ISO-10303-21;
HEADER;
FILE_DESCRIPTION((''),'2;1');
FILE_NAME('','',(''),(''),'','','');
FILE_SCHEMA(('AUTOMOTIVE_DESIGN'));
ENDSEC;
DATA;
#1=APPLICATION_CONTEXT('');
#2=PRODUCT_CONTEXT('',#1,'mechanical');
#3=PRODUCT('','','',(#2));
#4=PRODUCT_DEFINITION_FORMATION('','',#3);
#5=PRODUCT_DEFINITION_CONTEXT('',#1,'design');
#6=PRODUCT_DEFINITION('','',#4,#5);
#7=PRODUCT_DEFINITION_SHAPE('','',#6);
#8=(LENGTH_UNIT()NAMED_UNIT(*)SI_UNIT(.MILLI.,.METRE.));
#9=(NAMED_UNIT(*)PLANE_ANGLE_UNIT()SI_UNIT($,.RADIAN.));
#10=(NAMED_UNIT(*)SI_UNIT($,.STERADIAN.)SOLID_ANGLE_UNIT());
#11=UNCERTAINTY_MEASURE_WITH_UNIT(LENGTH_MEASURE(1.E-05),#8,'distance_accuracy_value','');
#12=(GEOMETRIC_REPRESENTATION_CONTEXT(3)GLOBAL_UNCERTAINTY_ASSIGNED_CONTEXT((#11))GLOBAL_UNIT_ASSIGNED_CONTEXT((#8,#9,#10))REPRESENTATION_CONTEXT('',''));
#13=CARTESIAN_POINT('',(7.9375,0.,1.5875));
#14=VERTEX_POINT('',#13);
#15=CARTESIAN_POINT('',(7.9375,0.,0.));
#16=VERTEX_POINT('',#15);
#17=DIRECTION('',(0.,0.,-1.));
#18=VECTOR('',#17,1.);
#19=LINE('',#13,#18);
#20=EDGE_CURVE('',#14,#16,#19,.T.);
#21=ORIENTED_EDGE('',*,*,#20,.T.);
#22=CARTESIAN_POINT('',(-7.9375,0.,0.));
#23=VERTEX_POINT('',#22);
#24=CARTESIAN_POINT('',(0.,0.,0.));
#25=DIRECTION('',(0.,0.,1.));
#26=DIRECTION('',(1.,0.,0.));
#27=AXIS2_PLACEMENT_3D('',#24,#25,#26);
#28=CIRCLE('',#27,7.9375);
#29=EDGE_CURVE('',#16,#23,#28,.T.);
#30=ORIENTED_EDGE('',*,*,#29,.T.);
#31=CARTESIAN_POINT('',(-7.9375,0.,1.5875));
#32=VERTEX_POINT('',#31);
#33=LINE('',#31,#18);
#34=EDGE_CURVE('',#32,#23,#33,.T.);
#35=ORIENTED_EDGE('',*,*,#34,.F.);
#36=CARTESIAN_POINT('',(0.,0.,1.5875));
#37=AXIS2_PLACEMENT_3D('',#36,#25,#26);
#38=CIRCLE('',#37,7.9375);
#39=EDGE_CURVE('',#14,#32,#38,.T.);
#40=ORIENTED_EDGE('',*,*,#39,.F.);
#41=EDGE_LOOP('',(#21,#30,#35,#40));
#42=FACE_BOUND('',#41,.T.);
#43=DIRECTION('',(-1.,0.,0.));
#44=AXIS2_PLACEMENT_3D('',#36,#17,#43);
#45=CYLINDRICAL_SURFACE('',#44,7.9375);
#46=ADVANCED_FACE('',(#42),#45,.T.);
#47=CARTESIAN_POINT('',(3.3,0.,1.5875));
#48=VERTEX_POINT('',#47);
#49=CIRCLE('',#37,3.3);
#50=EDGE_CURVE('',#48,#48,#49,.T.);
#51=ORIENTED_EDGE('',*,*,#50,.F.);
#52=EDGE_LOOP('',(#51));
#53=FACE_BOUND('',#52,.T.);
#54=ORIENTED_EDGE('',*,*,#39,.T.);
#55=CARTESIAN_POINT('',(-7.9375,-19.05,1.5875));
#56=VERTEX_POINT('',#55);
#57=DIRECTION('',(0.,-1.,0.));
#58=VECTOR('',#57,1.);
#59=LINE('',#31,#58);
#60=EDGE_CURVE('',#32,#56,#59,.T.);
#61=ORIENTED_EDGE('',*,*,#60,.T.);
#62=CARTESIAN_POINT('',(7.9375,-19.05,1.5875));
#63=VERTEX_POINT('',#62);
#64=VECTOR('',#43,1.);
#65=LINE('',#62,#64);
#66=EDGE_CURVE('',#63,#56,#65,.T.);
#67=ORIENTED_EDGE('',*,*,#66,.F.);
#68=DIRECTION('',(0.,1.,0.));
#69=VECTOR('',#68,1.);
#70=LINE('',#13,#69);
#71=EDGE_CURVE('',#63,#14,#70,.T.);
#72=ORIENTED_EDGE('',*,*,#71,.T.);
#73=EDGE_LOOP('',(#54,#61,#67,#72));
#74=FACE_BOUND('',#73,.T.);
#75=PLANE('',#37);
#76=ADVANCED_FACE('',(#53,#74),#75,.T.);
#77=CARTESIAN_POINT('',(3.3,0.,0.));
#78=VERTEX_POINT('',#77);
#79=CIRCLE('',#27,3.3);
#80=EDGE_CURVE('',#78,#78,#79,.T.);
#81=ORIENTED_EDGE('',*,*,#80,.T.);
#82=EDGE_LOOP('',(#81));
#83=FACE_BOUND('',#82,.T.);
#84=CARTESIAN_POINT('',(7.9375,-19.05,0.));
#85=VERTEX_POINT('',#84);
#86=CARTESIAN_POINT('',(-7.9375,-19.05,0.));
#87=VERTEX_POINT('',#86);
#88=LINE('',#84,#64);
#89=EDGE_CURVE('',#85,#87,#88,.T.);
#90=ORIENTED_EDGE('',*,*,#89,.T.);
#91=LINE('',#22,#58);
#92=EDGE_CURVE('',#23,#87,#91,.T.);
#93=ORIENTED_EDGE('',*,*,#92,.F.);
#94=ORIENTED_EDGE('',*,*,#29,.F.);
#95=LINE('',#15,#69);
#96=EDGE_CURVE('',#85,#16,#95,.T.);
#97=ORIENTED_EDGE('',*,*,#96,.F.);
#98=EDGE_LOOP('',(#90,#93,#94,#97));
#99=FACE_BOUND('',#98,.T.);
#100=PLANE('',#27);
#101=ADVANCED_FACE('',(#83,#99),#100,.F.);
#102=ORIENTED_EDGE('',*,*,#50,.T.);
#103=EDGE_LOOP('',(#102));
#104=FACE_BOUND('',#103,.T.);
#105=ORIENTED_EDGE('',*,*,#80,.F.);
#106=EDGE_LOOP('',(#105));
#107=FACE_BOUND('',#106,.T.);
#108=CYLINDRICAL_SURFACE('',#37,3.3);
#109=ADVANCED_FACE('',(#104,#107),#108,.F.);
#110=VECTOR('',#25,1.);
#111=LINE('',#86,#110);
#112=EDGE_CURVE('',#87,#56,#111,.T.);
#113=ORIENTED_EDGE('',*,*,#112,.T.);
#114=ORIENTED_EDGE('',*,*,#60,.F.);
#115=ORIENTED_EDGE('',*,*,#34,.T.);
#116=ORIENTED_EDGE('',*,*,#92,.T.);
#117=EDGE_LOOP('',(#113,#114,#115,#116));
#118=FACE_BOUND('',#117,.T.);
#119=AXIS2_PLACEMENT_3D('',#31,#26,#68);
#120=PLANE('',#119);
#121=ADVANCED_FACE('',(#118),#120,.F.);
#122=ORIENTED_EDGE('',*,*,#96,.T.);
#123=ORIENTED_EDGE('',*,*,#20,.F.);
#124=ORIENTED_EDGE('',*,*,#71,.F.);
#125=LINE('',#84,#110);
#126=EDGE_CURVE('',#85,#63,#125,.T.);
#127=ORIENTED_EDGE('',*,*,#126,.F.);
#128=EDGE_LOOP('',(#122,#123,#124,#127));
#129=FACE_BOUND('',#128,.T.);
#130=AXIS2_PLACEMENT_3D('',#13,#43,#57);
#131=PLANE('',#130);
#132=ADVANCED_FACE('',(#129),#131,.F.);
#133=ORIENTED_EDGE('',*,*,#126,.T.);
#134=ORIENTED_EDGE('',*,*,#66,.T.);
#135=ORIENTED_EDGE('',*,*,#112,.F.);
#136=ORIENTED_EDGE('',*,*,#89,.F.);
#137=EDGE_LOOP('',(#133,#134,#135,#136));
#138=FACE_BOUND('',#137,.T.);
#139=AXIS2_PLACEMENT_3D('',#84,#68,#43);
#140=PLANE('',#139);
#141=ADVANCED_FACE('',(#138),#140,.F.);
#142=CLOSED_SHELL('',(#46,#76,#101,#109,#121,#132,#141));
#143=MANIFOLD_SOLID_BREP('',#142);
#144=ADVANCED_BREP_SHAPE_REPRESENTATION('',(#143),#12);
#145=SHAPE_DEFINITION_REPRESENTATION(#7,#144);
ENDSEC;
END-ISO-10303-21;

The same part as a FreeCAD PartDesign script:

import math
import FreeCAD as App
import Part
import Sketcher
Q = App.Units.Quantity


def add_polygon(sketch, points):
    """Adds a closed chain of lines whose ends are joined by coincident constraints."""
    first, n = sketch.GeometryCount, len(points)
    for a, b in zip(points, points[1:] + points[:1]):
        sketch.addGeometry(Part.LineSegment(App.Vector(*a, 0), App.Vector(*b, 0)), False)
    for i in range(n):
        sketch.addConstraint(Sketcher.Constraint("Coincident", first + i, 2, first + (i + 1) % n, 1))

doc = App.newDocument("Part")
body = doc.addObject("PartDesign::Body", "Body")

# Sketch on XY plane
sketch1 = body.newObject("Sketcher::SketchObject", "Sketch")
sketch1.AttachmentSupport = (doc.getObject("XY_Plane"), [""])
sketch1.MapMode = "FlatFace"
sketch1.addGeometry(Part.LineSegment(App.Vector(8, -25, 0), App.Vector(8, 0, 0)), False)
sketch1.addGeometry(Part.ArcOfCircle(Part.Circle(App.Vector(0, 0, 0), App.Vector(0, 0, 1), 8), math.radians(0), math.radians(180)), False)
sketch1.addGeometry(Part.LineSegment(App.Vector(-8, 0, 0), App.Vector(-8, -25, 0)), False)
sketch1.addGeometry(Part.LineSegment(App.Vector(-8, -25, 0), App.Vector(8, -25, 0)), False)
sketch1.addConstraint(Sketcher.Constraint("Tangent", 0, 2, 1, 1))
sketch1.addConstraint(Sketcher.Constraint("Tangent", 1, 2, 2, 1))
sketch1.addConstraint(Sketcher.Constraint("Coincident", 2, 2, 3, 1))
sketch1.addConstraint(Sketcher.Constraint("Coincident", 3, 2, 0, 1))
sketch1.addConstraint(Sketcher.Constraint("Vertical", 0))
sketch1.addConstraint(Sketcher.Constraint("Vertical", 2))
sketch1.addConstraint(Sketcher.Constraint("Horizontal", 3))
sketch1.addConstraint(Sketcher.Constraint("Coincident", 1, 3, -1, 1))
sketch1.addConstraint(Sketcher.Constraint("DistanceY", 0, 1, 0, 2, Q("1 in")))
sketch1.addConstraint(Sketcher.Constraint("Radius", 1, Q("0.3125 in")))
pad1 = body.newObject("PartDesign::Pad", "Pad")
pad1.Profile = sketch1
pad1.Length = Q("0.0625 in")

# Sketch on XY plane
sketch2 = body.newObject("Sketcher::SketchObject", "Sketch001")
sketch2.AttachmentSupport = (doc.getObject("XY_Plane"), [""])
sketch2.MapMode = "FlatFace"
sketch2.AttachmentOffset = App.Placement(App.Vector(0, 0, 0.0625 * 25.4), App.Rotation())
sketch2.addGeometry(Part.Circle(App.Vector(0, 0, 0), App.Vector(0, 0, 1), 3.3), False)
sketch2.addConstraint(Sketcher.Constraint("Coincident", 0, 3, -1, 1))
sketch2.addConstraint(Sketcher.Constraint("Diameter", 0, Q("6.6 mm")))
doc.recompute()
hole = body.newObject("PartDesign::Hole", "Hole")
hole.Profile = sketch2
hole.ThreadType = "None"
hole.Diameter = 6.6
hole.DepthType = "ThroughAll"

# Sketch on XY plane
sketch3 = body.newObject("Sketcher::SketchObject", "Sketch002")
sketch3.AttachmentSupport = (doc.getObject("XY_Plane"), [""])
sketch3.MapMode = "FlatFace"
sketch3.AttachmentOffset = App.Placement(App.Vector(0, 0, 0.0625 * 25.4), App.Rotation())
add_polygon(sketch3, [(-8, -19), (-8, -25), (8, -25), (8, -19)])  # lines 0-3
sketch3.addConstraint(Sketcher.Constraint("Vertical", 0))
sketch3.addConstraint(Sketcher.Constraint("Horizontal", 1))
sketch3.addConstraint(Sketcher.Constraint("Vertical", 2))
sketch3.addConstraint(Sketcher.Constraint("Horizontal", 3))
sketch3.addConstraint(Sketcher.Constraint("DistanceY", 0, 2, -1, 1, Q("1 in")))
sketch3.addConstraint(Sketcher.Constraint("DistanceY", 0, 2, 0, 1, Q("0.25 in")))
sketch3.addConstraint(Sketcher.Constraint("DistanceX", 1, 1, 1, 2, Q("0.625 in")))
sketch3.addConstraint(Sketcher.Constraint("DistanceX", 0, 2, -1, 1, Q("0.3125 in")))
pocket1 = body.newObject("PartDesign::Pocket", "Pocket")
pocket1.Profile = sketch3
pocket1.Type = "ThroughAll"

doc.recompute()
